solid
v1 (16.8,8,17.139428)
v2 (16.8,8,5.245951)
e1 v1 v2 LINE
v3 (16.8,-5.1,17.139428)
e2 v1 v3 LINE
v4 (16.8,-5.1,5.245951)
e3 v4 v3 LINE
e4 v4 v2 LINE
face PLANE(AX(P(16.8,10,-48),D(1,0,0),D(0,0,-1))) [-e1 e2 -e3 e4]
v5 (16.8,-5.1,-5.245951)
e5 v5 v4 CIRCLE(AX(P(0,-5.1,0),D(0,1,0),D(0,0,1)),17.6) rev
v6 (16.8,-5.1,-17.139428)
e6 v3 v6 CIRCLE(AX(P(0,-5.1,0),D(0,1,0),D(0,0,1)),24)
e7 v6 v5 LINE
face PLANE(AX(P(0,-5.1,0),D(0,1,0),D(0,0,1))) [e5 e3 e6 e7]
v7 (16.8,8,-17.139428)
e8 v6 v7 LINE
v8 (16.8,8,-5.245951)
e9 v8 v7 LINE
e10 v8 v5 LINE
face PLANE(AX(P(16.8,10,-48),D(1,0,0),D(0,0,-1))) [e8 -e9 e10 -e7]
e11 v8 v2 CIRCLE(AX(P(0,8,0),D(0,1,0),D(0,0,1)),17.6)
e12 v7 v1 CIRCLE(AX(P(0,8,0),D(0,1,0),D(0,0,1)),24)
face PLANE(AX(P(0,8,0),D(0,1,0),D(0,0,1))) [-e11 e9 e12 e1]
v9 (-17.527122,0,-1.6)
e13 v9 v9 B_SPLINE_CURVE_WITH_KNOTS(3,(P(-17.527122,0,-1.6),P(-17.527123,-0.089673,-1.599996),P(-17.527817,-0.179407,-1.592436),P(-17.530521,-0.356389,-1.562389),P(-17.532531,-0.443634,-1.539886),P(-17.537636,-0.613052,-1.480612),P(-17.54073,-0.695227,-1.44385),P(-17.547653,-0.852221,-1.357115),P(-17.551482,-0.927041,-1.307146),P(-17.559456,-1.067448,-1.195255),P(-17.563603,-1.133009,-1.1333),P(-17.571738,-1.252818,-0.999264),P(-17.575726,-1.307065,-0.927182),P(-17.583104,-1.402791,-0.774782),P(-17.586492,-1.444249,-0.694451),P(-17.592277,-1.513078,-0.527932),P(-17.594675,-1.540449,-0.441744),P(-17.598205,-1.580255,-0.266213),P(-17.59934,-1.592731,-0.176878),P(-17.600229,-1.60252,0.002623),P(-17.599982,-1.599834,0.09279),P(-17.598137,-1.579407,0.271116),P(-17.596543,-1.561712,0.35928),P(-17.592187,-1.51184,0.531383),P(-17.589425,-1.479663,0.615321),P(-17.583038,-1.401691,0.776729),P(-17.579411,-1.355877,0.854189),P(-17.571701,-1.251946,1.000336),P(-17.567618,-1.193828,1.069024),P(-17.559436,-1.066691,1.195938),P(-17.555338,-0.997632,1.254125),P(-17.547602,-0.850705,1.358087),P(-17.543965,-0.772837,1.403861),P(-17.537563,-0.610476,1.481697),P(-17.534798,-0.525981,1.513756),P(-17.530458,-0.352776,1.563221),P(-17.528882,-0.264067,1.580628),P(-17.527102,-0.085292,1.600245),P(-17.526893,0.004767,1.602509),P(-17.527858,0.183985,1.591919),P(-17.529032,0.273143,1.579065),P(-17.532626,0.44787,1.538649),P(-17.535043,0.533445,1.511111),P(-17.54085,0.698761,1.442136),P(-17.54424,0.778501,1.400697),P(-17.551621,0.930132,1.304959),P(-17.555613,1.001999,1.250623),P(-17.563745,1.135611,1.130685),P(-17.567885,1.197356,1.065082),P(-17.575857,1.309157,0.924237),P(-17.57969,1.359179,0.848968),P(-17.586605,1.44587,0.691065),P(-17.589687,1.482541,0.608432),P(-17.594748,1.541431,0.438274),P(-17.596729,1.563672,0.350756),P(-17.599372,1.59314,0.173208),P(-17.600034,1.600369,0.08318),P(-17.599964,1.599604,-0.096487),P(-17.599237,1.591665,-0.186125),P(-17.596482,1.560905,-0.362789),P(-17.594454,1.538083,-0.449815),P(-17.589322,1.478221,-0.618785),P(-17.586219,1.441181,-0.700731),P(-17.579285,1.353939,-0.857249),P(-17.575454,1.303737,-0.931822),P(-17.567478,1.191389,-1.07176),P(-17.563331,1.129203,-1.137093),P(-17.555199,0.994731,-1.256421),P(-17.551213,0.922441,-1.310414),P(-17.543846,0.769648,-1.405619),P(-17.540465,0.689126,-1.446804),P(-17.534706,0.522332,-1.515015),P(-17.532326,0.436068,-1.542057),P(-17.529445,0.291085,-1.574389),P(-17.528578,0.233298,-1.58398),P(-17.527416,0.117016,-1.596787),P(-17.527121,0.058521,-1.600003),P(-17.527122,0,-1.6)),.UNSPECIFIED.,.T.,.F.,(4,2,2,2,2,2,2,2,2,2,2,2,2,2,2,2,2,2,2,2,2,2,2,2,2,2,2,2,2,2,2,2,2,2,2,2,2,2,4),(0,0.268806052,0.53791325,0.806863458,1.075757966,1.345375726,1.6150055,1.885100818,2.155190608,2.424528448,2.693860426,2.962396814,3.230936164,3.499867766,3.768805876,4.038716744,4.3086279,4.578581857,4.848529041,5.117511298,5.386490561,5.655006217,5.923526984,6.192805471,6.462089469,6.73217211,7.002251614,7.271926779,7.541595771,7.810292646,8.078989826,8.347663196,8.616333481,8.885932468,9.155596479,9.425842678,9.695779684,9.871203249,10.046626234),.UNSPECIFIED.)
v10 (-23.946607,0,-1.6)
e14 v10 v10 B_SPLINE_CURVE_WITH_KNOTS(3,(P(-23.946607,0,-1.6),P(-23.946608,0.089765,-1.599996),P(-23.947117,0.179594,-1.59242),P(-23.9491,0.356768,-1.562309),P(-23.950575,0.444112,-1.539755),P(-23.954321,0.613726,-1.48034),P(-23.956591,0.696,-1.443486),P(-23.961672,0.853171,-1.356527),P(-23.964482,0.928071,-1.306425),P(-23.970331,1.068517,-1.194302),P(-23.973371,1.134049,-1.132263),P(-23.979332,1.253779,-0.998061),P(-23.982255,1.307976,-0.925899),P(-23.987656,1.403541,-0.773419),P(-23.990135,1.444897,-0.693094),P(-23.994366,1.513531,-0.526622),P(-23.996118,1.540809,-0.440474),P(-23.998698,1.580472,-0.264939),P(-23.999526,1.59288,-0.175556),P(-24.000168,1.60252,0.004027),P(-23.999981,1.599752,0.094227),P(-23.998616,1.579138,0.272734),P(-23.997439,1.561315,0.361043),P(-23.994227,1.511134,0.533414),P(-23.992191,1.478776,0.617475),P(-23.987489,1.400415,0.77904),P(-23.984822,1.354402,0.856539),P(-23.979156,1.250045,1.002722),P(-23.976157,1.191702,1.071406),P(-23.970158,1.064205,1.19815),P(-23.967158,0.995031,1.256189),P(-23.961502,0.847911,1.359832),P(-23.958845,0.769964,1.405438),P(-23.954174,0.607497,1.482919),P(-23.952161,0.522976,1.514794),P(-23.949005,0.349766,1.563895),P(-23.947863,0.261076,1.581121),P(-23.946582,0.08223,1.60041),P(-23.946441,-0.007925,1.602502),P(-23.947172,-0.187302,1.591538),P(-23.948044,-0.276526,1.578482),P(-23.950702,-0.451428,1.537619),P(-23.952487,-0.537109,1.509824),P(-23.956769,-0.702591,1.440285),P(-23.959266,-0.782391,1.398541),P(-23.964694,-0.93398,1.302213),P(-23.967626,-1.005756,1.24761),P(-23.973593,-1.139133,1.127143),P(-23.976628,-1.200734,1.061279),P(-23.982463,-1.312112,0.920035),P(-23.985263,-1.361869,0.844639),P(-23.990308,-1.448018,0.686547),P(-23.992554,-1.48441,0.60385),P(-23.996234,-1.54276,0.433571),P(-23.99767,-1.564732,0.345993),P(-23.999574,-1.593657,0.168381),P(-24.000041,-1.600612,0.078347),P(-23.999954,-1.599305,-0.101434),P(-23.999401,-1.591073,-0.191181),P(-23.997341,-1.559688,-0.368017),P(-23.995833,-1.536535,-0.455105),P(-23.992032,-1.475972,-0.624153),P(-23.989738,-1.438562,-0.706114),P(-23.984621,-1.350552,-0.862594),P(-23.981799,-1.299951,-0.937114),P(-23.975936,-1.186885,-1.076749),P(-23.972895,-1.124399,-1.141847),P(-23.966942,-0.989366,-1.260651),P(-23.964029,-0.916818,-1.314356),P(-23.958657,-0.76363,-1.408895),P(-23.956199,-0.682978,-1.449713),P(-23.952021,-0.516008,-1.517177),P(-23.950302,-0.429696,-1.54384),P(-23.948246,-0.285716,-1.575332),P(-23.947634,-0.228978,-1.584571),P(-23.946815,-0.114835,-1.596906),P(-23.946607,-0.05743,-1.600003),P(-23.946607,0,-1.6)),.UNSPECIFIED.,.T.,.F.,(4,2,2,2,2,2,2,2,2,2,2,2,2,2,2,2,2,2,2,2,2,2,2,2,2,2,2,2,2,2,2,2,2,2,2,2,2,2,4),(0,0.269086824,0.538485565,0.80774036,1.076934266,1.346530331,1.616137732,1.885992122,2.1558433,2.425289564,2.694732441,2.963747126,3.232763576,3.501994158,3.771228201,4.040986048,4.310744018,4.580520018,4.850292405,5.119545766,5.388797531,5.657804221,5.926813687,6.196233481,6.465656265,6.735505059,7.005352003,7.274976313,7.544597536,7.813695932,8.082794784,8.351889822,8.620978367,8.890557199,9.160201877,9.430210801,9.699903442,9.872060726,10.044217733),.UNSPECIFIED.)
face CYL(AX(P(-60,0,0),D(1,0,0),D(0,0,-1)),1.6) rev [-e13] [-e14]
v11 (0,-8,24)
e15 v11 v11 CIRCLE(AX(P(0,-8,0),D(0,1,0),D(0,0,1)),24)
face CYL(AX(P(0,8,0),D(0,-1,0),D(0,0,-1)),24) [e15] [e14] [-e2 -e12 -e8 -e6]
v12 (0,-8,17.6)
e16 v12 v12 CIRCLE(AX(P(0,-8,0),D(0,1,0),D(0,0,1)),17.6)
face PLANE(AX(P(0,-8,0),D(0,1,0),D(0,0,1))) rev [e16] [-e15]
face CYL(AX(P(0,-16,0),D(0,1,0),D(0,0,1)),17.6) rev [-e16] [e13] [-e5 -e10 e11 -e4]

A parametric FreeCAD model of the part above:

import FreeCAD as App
import Part
import Sketcher
from FreeCAD import Vector
Q = App.Units.Quantity

doc = App.newDocument("Part")
body = doc.addObject("PartDesign::Body", "Body")

# Sketch on XZ plane
sketch1 = body.newObject("Sketcher::SketchObject", "Sketch")
sketch1.AttachmentSupport = (doc.getObject("XZ_Plane"), [""])
sketch1.MapMode = "FlatFace"
sketch1.addGeometry(Part.Circle(Vector(0, 0, 0), Vector(0, 0, 1), 24), False)
sketch1.addConstraint(Sketcher.Constraint("Coincident", 0, 3, -1, 1))
sketch1.addConstraint(Sketcher.Constraint("Diameter", 0, Q("48 mm")))
pad1 = body.newObject("PartDesign::Pad", "Pad")
pad1.Profile = sketch1
pad1.Length = 16
pad1.Midplane = True

# Sketch on XZ plane
sketch2 = body.newObject("Sketcher::SketchObject", "Sketch001")
sketch2.AttachmentSupport = (doc.getObject("XZ_Plane"), [""])
sketch2.MapMode = "FlatFace"
sketch2.addGeometry(Part.Circle(Vector(0, 0, 0), Vector(0, 0, 1), 18), False)
sketch2.addConstraint(Sketcher.Constraint("Coincident", 0, 3, -1, 1))
sketch2.addConstraint(Sketcher.Constraint("Diameter", 0, Q("35.2 mm")))
pocket1 = body.newObject("PartDesign::Pocket", "Pocket")
pocket1.Profile = sketch2
pocket1.Length = 32
pocket1.Midplane = True

# Sketch on XZ plane
sketch3 = body.newObject("Sketcher::SketchObject", "Sketch002")
sketch3.AttachmentSupport = (doc.getObject("XZ_Plane"), [""])
sketch3.MapMode = "FlatFace"
sketch3.AttachmentOffset = App.Placement(Vector(0, 0, 5.1), App.Rotation())
sketch3.addGeometry(Part.LineSegment(Vector(17, -48, 0), Vector(17, 48, 0)), False)
sketch3.addGeometry(Part.LineSegment(Vector(17, 48, 0), Vector(27, 48, 0)), False)
sketch3.addGeometry(Part.LineSegment(Vector(27, 48, 0), Vector(27, -48, 0)), False)
sketch3.addGeometry(Part.LineSegment(Vector(27, -48, 0), Vector(17, -48, 0)), False)
sketch3.addConstraint(Sketcher.Constraint("Coincident", 0, 2, 1, 1))
sketch3.addConstraint(Sketcher.Constraint("Coincident", 1, 2, 2, 1))
sketch3.addConstraint(Sketcher.Constraint("Coincident", 2, 2, 3, 1))
sketch3.addConstraint(Sketcher.Constraint("Coincident", 3, 2, 0, 1))
sketch3.addConstraint(Sketcher.Constraint("Vertical", 0))
sketch3.addConstraint(Sketcher.Constraint("Horizontal", 1))
sketch3.addConstraint(Sketcher.Constraint("Vertical", 2))
sketch3.addConstraint(Sketcher.Constraint("Horizontal", 3))
sketch3.addConstraint(Sketcher.Constraint("DistanceY", 0, 1, 0, 2, Q("96 mm")))
sketch3.addConstraint(Sketcher.Constraint("DistanceX", 1, 1, 1, 2, Q("10.2 mm")))
sketch3.addConstraint(Sketcher.Constraint("DistanceY", -1, 1, 0, 2, Q("48 mm")))
sketch3.addConstraint(Sketcher.Constraint("DistanceX", -1, 1, 1, 2, Q("27 mm")))
pocket2 = body.newObject("PartDesign::Pocket", "Pocket001")
pocket2.Profile = sketch3
pocket2.Length = 15.1

# Sketch on YZ plane
sketch4 = body.newObject("Sketcher::SketchObject", "Sketch003")
sketch4.AttachmentSupport = (doc.getObject("YZ_Plane"), [""])
sketch4.MapMode = "FlatFace"
sketch4.addGeometry(Part.Circle(Vector(0, 0, 0), Vector(0, 0, 1), 1.6), False)
sketch4.addConstraint(Sketcher.Constraint("Coincident", 0, 3, -1, 1))
sketch4.addConstraint(Sketcher.Constraint("Diameter", 0, Q("3.2 mm")))
pocket3 = body.newObject("PartDesign::Pocket", "Pocket002")
pocket3.Profile = sketch4
pocket3.Length = 120
pocket3.Midplane = True

doc.recompute()
